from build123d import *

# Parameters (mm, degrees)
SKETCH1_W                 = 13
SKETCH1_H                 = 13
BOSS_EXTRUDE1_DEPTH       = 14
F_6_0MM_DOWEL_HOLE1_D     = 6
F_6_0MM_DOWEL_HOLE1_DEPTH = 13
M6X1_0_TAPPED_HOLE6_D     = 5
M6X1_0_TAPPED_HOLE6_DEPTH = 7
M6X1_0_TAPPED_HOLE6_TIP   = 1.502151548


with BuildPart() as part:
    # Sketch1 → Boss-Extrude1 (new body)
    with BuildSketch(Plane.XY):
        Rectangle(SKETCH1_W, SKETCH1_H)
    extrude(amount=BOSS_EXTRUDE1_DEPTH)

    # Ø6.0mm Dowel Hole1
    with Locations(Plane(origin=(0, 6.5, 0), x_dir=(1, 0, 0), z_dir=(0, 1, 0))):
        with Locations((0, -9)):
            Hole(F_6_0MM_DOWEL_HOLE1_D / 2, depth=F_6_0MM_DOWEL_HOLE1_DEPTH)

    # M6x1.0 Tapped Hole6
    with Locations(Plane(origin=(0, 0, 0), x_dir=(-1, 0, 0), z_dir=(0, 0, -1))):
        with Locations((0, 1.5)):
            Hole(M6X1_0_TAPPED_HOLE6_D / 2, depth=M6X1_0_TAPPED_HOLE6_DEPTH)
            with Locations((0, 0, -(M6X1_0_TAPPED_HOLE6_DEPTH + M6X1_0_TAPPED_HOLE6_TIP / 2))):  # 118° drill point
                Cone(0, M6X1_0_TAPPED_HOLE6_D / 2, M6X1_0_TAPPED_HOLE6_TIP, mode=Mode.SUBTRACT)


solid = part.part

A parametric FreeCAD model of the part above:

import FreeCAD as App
import Part
import Sketcher

V = App.Vector

doc = App.newDocument("Part")
body = doc.addObject("PartDesign::Body", "Body")

# Sketch on XY plane
sketch1 = doc.addObject("Sketcher::SketchObject", "Sketch")
body.addObject(sketch1)
sketch1.AttachmentSupport = (doc.XY_Plane, [""])
sketch1.MapMode = "FlatFace"
sketch1.addGeometry(Part.LineSegment(V(-6, 6, 0), V(-6, -6, 0)), False)
sketch1.addGeometry(Part.LineSegment(V(-6, -6, 0), V(6, -6, 0)), False)
sketch1.addGeometry(Part.LineSegment(V(6, -6, 0), V(6, 6, 0)), False)
sketch1.addGeometry(Part.LineSegment(V(6, 6, 0), V(-6, 6, 0)), False)
sketch1.addConstraint(Sketcher.Constraint("Coincident", 0, 2, 1, 1))
sketch1.addConstraint(Sketcher.Constraint("Coincident", 1, 2, 2, 1))
sketch1.addConstraint(Sketcher.Constraint("Coincident", 2, 2, 3, 1))
sketch1.addConstraint(Sketcher.Constraint("Coincident", 3, 2, 0, 1))
sketch1.addConstraint(Sketcher.Constraint("Vertical", 0))
sketch1.addConstraint(Sketcher.Constraint("Horizontal", 1))
sketch1.addConstraint(Sketcher.Constraint("Vertical", 2))
sketch1.addConstraint(Sketcher.Constraint("Horizontal", 3))
sketch1.addConstraint(Sketcher.Constraint("Symmetric", 0, 2, 2, 2, -1, 1))
sketch1.addConstraint(Sketcher.Constraint("Equal", 3, 0))
sketch1.addConstraint(Sketcher.Constraint("DistanceX", 1, 1, 1, 2, 13.0))
pad1 = doc.addObject("PartDesign::Pad", "Pad")
body.addObject(pad1)
pad1.Profile = sketch1
pad1.Length = 14

# Sketch on XZ plane
sketch2 = doc.addObject("Sketcher::SketchObject", "Sketch001")
body.addObject(sketch2)
sketch2.AttachmentSupport = (doc.XZ_Plane, [""])
sketch2.MapMode = "FlatFace"
sketch2.AttachmentOffset = App.Placement(V(0, 0, -6.5), App.Rotation())
sketch2.addGeometry(Part.Circle(V(0, 9, 0), V(0, 0, 1), 3), False)
sketch2.addConstraint(Sketcher.Constraint("PointOnObject", 0, 3, -2))
sketch2.addConstraint(Sketcher.Constraint("Diameter", 0, 6.0))
sketch2.addConstraint(Sketcher.Constraint("DistanceY", -1, 1, 0, 3, 9.0))
doc.recompute()
hole = doc.addObject("PartDesign::Hole", "Hole")
body.addObject(hole)
hole.Profile = sketch2
hole.ThreadType = "None"
hole.Diameter = 6
hole.DepthType = "Dimension"
hole.Depth = 13
hole.DrillPoint = "Flat"
hole.Reversed = True

# Sketch on XY plane
sketch3 = doc.addObject("Sketcher::SketchObject", "Sketch002")
body.addObject(sketch3)
sketch3.AttachmentSupport = (doc.XY_Plane, [""])
sketch3.MapMode = "FlatFace"
sketch3.addGeometry(Part.Circle(V(0, 1.5, 0), V(0, 0, 1), 2.5), False)
sketch3.addConstraint(Sketcher.Constraint("PointOnObject", 0, 3, -2))
sketch3.addConstraint(Sketcher.Constraint("Diameter", 0, 5.0))
sketch3.addConstraint(Sketcher.Constraint("DistanceY", -1, 1, 0, 3, 1.5))
doc.recompute()
hole2 = doc.addObject("PartDesign::Hole", "Hole001")
body.addObject(hole2)
hole2.Profile = sketch3
hole2.ThreadType = "None"
hole2.Diameter = 5
hole2.DepthType = "Dimension"
hole2.Depth = 7
hole2.DrillPoint = "Angled"
hole2.DrillPointAngle = 118
hole2.Reversed = True

doc.recompute()
